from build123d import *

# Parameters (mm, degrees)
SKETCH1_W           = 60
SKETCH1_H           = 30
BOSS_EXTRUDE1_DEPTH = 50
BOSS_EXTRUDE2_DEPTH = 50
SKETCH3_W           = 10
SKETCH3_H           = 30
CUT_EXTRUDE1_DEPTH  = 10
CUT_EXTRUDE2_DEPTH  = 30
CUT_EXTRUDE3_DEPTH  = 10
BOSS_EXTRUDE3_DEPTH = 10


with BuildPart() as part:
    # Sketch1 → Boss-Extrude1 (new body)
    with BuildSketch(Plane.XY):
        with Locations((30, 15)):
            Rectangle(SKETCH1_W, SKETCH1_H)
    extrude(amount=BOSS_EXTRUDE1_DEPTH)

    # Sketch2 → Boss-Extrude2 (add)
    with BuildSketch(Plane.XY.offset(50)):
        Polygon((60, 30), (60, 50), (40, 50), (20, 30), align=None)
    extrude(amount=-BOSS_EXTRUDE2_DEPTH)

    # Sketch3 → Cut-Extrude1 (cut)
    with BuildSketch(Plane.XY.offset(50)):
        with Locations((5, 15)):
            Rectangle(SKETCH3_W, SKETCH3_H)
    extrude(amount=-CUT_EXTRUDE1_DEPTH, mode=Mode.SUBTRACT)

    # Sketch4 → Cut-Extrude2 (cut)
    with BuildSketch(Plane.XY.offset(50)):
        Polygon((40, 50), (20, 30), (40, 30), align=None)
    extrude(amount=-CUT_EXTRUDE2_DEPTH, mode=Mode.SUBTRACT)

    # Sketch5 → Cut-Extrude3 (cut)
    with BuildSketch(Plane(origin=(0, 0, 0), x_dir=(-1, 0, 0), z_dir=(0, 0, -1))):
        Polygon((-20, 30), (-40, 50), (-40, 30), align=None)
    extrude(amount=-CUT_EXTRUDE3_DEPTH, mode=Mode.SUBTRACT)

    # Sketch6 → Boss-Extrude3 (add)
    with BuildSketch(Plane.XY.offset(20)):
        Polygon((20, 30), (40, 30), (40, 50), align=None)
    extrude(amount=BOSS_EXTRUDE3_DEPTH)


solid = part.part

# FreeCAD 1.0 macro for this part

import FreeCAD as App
import Part
import Sketcher

V = App.Vector


def add_polygon(sketch, points):
    """Adds a closed chain of lines whose ends are joined by coincident constraints."""
    first, n = sketch.GeometryCount, len(points)
    for a, b in zip(points, points[1:] + points[:1]):
        sketch.addGeometry(Part.LineSegment(App.Vector(*a, 0), App.Vector(*b, 0)), False)
    for i in range(n):
        sketch.addConstraint(Sketcher.Constraint("Coincident", first + i, 2, first + (i + 1) % n, 1))

doc = App.newDocument("Part")
body = doc.addObject("PartDesign::Body", "Body")

# Sketch on XY plane
sketch1 = body.newObject("Sketcher::SketchObject", "Sketch")
sketch1.AttachmentSupport = (doc.getObject("XY_Plane"), [""])
sketch1.MapMode = "FlatFace"
add_polygon(sketch1, [(0, 30), (0, 0), (60, 0), (60, 30)])  # lines 0-3
sketch1.addConstraint([
    Sketcher.Constraint("Vertical", 0),
    Sketcher.Constraint("Horizontal", 1),
    Sketcher.Constraint("Vertical", 2),
    Sketcher.Constraint("Horizontal", 3),
    Sketcher.Constraint("Coincident", 0, 2, -1, 1),
    Sketcher.Constraint("DistanceX", 1, 1, 1, 2, 60.0),
    Sketcher.Constraint("DistanceY", 0, 2, 0, 1, 30.0),
])
pad1 = body.newObject("PartDesign::Pad", "Pad")
pad1.Profile = sketch1
pad1.Length = 50

# Sketch on XY plane
sketch2 = body.newObject("Sketcher::SketchObject", "Sketch001")
sketch2.AttachmentSupport = (doc.getObject("XY_Plane"), [""])
sketch2.MapMode = "FlatFace"
sketch2.AttachmentOffset = App.Placement(V(0, 0, 50), App.Rotation())
add_polygon(sketch2, [(60, 30), (60, 50), (40, 50), (20, 30)])  # lines 0-3
sketch2.addConstraint([
    Sketcher.Constraint("Vertical", 0),
    Sketcher.Constraint("Horizontal", 1),
    Sketcher.Constraint("Horizontal", 3),
    Sketcher.Constraint("Equal", 1, 0),
    Sketcher.Constraint("DistanceX", 1, 2, 1, 1, 20.0),
    Sketcher.Constraint("DistanceX", 3, 1, 3, 2, 40.0),
    Sketcher.Constraint("DistanceX", -1, 1, 0, 2, 60.0),
    Sketcher.Constraint("DistanceY", -1, 1, 0, 2, 50.0),
])
pad2 = body.newObject("PartDesign::Pad", "Pad001")
pad2.Profile = sketch2
pad2.Length = 50
pad2.Reversed = True

# Sketch on XY plane
sketch3 = body.newObject("Sketcher::SketchObject", "Sketch002")
sketch3.AttachmentSupport = (doc.getObject("XY_Plane"), [""])
sketch3.MapMode = "FlatFace"
sketch3.AttachmentOffset = App.Placement(V(0, 0, 50), App.Rotation())
add_polygon(sketch3, [(0, 30), (0, 0), (10, 0), (10, 30)])  # lines 0-3
sketch3.addConstraint([
    Sketcher.Constraint("Vertical", 0),
    Sketcher.Constraint("Horizontal", 1),
    Sketcher.Constraint("Vertical", 2),
    Sketcher.Constraint("Horizontal", 3),
    Sketcher.Constraint("Coincident", 0, 2, -1, 1),
    Sketcher.Constraint("DistanceX", 1, 1, 1, 2, 10.0),
    Sketcher.Constraint("DistanceY", 0, 2, 0, 1, 30.0),
])
pocket1 = body.newObject("PartDesign::Pocket", "Pocket")
pocket1.Profile = sketch3
pocket1.Length = 10

# Sketch on XY plane
sketch4 = body.newObject("Sketcher::SketchObject", "Sketch003")
sketch4.AttachmentSupport = (doc.getObject("XY_Plane"), [""])
sketch4.MapMode = "FlatFace"
sketch4.AttachmentOffset = App.Placement(V(0, 0, 50), App.Rotation())
add_polygon(sketch4, [(40, 50), (20, 30), (40, 30)])  # lines 0-2
sketch4.addConstraint([
    Sketcher.Constraint("Horizontal", 1),
    Sketcher.Constraint("Vertical", 2),
    Sketcher.Constraint("Equal", 1, 2),
    Sketcher.Constraint("DistanceX", 1, 1, 1, 2, 20.0),
    Sketcher.Constraint("DistanceX", -1, 1, 0, 2, 20.0),
    Sketcher.Constraint("DistanceY", -1, 1, 0, 2, 30.0),
])
pocket2 = body.newObject("PartDesign::Pocket", "Pocket001")
pocket2.Profile = sketch4
pocket2.Length = 30

# Sketch on XY plane
sketch5 = body.newObject("Sketcher::SketchObject", "Sketch004")
sketch5.AttachmentSupport = (doc.getObject("XY_Plane"), [""])
sketch5.MapMode = "FlatFace"
add_polygon(sketch5, [(20, 30), (40, 50), (40, 30)])  # lines 0-2
sketch5.addConstraint([
    Sketcher.Constraint("Vertical", 1),
    Sketcher.Constraint("Horizontal", 2),
    Sketcher.Constraint("Equal", 2, 1),
    Sketcher.Constraint("DistanceX", 2, 2, 2, 1, 20.0),
    Sketcher.Constraint("DistanceX", -1, 1, 0, 2, 40.0),
    Sketcher.Constraint("DistanceY", -1, 1, 0, 2, 50.0),
])
pocket3 = body.newObject("PartDesign::Pocket", "Pocket002")
pocket3.Profile = sketch5
pocket3.Length = 10
pocket3.Reversed = True

# Sketch on XY plane
sketch6 = body.newObject("Sketcher::SketchObject", "Sketch005")
sketch6.AttachmentSupport = (doc.getObject("XY_Plane"), [""])
sketch6.MapMode = "FlatFace"
sketch6.AttachmentOffset = App.Placement(V(0, 0, 20), App.Rotation())
add_polygon(sketch6, [(20, 30), (40, 30), (40, 50)])  # lines 0-2
sketch6.addConstraint([
    Sketcher.Constraint("Horizontal", 0),
    Sketcher.Constraint("Vertical", 1),
    Sketcher.Constraint("Equal", 0, 1),
    Sketcher.Constraint("DistanceX", 0, 1, 0, 2, 20.0),
    Sketcher.Constraint("DistanceX", -1, 1, 0, 2, 40.0),
    Sketcher.Constraint("DistanceY", -1, 1, 0, 2, 30.0),
])
pad3 = body.newObject("PartDesign::Pad", "Pad002")
pad3.Profile = sketch6
pad3.Length = 10

doc.recompute()
